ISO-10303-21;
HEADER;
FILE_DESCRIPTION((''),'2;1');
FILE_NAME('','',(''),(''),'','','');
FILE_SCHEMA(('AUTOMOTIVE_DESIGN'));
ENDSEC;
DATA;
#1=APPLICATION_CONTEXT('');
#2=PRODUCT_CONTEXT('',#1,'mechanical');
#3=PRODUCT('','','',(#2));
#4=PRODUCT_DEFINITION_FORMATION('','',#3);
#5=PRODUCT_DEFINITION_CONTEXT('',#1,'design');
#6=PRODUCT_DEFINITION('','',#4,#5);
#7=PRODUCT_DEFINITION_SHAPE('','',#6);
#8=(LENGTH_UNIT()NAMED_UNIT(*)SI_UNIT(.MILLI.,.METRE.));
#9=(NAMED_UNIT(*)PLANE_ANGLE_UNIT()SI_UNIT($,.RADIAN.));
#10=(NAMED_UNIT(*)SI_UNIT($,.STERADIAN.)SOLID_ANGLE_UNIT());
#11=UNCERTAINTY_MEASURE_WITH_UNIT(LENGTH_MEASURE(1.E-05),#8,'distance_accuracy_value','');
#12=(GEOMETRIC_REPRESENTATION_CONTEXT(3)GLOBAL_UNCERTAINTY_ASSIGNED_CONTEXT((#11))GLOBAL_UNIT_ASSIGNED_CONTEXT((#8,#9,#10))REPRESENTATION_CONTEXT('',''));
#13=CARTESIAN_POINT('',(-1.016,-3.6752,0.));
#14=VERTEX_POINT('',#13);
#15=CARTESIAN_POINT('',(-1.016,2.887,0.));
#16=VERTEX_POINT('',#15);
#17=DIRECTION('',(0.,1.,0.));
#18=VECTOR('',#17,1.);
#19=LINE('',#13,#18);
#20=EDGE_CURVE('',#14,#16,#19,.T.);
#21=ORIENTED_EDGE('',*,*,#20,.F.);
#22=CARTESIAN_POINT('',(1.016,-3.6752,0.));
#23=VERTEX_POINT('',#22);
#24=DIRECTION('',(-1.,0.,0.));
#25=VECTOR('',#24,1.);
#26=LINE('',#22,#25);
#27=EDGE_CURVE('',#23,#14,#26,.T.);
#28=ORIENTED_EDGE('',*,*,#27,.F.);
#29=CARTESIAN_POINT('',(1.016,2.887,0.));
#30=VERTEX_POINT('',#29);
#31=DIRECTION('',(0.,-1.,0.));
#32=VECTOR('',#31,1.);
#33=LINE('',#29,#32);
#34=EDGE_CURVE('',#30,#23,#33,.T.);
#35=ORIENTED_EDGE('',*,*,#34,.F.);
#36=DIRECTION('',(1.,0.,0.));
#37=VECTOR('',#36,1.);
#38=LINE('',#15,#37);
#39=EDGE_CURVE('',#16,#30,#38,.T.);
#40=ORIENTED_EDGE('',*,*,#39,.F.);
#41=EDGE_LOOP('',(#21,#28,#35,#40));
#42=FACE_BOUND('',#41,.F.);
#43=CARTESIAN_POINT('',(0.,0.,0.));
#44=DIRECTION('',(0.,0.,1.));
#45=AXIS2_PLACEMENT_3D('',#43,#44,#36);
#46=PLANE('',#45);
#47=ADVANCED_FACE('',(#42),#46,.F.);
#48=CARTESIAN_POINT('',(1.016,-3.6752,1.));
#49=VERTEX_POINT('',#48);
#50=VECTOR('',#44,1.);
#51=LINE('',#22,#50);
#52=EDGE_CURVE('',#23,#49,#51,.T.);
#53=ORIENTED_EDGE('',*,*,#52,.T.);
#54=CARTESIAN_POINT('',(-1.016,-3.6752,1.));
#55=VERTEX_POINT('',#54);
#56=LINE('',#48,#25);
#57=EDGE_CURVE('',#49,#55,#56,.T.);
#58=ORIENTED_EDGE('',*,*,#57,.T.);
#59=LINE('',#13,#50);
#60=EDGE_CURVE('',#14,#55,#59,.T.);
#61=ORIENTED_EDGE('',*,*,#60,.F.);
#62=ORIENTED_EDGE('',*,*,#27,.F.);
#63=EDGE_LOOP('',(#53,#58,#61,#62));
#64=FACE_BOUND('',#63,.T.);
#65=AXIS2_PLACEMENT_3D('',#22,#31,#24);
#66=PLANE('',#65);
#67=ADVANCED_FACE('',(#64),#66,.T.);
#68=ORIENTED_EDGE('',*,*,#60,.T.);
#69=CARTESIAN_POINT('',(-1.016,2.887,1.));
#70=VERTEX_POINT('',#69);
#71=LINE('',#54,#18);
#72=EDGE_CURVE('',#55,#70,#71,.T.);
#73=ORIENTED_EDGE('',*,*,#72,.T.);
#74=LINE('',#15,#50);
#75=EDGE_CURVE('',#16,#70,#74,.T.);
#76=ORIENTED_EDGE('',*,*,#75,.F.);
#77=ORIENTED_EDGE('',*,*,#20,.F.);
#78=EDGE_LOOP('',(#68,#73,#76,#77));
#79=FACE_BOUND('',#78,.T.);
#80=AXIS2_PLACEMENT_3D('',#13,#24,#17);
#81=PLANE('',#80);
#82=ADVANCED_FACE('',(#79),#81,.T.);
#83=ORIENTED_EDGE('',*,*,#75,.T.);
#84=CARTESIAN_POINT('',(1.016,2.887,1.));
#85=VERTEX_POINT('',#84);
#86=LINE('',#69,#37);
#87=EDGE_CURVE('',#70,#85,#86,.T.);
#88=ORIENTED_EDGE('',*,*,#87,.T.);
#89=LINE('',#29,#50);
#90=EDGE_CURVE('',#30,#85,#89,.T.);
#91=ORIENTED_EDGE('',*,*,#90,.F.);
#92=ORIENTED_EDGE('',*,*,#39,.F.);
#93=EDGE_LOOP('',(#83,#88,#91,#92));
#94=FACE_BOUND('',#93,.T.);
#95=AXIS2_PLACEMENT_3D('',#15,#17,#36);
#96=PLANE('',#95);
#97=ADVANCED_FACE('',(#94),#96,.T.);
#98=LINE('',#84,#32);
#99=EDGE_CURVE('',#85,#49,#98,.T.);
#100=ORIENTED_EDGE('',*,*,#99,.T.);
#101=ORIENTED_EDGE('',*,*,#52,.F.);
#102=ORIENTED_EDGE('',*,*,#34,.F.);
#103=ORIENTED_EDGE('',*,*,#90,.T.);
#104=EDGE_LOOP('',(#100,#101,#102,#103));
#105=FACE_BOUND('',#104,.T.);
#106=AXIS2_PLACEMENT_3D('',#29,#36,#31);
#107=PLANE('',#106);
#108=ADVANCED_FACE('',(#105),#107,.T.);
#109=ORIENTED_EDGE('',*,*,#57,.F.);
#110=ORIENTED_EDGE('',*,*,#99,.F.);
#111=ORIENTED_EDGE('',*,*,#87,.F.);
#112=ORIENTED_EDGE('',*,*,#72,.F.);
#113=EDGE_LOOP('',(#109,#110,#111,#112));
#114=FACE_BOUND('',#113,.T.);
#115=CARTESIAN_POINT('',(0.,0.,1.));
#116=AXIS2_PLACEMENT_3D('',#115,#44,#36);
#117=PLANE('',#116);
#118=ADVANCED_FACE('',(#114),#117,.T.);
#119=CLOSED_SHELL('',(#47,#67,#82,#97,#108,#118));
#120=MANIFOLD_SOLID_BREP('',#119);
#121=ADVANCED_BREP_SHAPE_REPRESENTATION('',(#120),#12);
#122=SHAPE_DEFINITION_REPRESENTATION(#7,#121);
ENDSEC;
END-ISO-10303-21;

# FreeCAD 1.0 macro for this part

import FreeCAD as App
import Part
import Sketcher
from FreeCAD import Vector
Q = App.Units.Quantity

doc = App.newDocument("Part")
body = doc.addObject("PartDesign::Body", "Body")

sketch1 = body.newObject("Sketcher::SketchObject", "Sketch")
sketch1.AttachmentSupport = (doc.getObject("XY_Plane"), [""])
sketch1.MapMode = "FlatFace"
sketch1.addGeometry([
    Part.LineSegment(Vector(1, 2.9, 0), Vector(-1, 2.9, 0)),
    Part.LineSegment(Vector(-1, 2.9, 0), Vector(-1, -3.7, 0)),
    Part.LineSegment(Vector(-1, -3.7, 0), Vector(1, -3.7, 0)),
    Part.LineSegment(Vector(1, -3.7, 0), Vector(1, 2.9, 0)),
], False)
sketch1.addConstraint([
    Sketcher.Constraint("Coincident", 0, 2, 1, 1),
    Sketcher.Constraint("Coincident", 1, 2, 2, 1),
    Sketcher.Constraint("Coincident", 2, 2, 3, 1),
    Sketcher.Constraint("Coincident", 3, 2, 0, 1),
    Sketcher.Constraint("Horizontal", 0),
    Sketcher.Constraint("Vertical", 1),
    Sketcher.Constraint("Horizontal", 2),
    Sketcher.Constraint("Vertical", 3),
    Sketcher.Constraint("DistanceX", 0, 2, 0, 1, Q("2.032 mm")),
    Sketcher.Constraint("DistanceY", 1, 2, 1, 1, Q("6.5622 mm")),
    Sketcher.Constraint("DistanceX", 0, 2, -1, 1, Q("1.016 mm")),
    Sketcher.Constraint("DistanceY", -1, 1, 0, 2, Q("2.887 mm")),
])
pad1 = body.newObject("PartDesign::Pad", "Pad")
pad1.Profile = sketch1
pad1.Length = 1

doc.recompute()
